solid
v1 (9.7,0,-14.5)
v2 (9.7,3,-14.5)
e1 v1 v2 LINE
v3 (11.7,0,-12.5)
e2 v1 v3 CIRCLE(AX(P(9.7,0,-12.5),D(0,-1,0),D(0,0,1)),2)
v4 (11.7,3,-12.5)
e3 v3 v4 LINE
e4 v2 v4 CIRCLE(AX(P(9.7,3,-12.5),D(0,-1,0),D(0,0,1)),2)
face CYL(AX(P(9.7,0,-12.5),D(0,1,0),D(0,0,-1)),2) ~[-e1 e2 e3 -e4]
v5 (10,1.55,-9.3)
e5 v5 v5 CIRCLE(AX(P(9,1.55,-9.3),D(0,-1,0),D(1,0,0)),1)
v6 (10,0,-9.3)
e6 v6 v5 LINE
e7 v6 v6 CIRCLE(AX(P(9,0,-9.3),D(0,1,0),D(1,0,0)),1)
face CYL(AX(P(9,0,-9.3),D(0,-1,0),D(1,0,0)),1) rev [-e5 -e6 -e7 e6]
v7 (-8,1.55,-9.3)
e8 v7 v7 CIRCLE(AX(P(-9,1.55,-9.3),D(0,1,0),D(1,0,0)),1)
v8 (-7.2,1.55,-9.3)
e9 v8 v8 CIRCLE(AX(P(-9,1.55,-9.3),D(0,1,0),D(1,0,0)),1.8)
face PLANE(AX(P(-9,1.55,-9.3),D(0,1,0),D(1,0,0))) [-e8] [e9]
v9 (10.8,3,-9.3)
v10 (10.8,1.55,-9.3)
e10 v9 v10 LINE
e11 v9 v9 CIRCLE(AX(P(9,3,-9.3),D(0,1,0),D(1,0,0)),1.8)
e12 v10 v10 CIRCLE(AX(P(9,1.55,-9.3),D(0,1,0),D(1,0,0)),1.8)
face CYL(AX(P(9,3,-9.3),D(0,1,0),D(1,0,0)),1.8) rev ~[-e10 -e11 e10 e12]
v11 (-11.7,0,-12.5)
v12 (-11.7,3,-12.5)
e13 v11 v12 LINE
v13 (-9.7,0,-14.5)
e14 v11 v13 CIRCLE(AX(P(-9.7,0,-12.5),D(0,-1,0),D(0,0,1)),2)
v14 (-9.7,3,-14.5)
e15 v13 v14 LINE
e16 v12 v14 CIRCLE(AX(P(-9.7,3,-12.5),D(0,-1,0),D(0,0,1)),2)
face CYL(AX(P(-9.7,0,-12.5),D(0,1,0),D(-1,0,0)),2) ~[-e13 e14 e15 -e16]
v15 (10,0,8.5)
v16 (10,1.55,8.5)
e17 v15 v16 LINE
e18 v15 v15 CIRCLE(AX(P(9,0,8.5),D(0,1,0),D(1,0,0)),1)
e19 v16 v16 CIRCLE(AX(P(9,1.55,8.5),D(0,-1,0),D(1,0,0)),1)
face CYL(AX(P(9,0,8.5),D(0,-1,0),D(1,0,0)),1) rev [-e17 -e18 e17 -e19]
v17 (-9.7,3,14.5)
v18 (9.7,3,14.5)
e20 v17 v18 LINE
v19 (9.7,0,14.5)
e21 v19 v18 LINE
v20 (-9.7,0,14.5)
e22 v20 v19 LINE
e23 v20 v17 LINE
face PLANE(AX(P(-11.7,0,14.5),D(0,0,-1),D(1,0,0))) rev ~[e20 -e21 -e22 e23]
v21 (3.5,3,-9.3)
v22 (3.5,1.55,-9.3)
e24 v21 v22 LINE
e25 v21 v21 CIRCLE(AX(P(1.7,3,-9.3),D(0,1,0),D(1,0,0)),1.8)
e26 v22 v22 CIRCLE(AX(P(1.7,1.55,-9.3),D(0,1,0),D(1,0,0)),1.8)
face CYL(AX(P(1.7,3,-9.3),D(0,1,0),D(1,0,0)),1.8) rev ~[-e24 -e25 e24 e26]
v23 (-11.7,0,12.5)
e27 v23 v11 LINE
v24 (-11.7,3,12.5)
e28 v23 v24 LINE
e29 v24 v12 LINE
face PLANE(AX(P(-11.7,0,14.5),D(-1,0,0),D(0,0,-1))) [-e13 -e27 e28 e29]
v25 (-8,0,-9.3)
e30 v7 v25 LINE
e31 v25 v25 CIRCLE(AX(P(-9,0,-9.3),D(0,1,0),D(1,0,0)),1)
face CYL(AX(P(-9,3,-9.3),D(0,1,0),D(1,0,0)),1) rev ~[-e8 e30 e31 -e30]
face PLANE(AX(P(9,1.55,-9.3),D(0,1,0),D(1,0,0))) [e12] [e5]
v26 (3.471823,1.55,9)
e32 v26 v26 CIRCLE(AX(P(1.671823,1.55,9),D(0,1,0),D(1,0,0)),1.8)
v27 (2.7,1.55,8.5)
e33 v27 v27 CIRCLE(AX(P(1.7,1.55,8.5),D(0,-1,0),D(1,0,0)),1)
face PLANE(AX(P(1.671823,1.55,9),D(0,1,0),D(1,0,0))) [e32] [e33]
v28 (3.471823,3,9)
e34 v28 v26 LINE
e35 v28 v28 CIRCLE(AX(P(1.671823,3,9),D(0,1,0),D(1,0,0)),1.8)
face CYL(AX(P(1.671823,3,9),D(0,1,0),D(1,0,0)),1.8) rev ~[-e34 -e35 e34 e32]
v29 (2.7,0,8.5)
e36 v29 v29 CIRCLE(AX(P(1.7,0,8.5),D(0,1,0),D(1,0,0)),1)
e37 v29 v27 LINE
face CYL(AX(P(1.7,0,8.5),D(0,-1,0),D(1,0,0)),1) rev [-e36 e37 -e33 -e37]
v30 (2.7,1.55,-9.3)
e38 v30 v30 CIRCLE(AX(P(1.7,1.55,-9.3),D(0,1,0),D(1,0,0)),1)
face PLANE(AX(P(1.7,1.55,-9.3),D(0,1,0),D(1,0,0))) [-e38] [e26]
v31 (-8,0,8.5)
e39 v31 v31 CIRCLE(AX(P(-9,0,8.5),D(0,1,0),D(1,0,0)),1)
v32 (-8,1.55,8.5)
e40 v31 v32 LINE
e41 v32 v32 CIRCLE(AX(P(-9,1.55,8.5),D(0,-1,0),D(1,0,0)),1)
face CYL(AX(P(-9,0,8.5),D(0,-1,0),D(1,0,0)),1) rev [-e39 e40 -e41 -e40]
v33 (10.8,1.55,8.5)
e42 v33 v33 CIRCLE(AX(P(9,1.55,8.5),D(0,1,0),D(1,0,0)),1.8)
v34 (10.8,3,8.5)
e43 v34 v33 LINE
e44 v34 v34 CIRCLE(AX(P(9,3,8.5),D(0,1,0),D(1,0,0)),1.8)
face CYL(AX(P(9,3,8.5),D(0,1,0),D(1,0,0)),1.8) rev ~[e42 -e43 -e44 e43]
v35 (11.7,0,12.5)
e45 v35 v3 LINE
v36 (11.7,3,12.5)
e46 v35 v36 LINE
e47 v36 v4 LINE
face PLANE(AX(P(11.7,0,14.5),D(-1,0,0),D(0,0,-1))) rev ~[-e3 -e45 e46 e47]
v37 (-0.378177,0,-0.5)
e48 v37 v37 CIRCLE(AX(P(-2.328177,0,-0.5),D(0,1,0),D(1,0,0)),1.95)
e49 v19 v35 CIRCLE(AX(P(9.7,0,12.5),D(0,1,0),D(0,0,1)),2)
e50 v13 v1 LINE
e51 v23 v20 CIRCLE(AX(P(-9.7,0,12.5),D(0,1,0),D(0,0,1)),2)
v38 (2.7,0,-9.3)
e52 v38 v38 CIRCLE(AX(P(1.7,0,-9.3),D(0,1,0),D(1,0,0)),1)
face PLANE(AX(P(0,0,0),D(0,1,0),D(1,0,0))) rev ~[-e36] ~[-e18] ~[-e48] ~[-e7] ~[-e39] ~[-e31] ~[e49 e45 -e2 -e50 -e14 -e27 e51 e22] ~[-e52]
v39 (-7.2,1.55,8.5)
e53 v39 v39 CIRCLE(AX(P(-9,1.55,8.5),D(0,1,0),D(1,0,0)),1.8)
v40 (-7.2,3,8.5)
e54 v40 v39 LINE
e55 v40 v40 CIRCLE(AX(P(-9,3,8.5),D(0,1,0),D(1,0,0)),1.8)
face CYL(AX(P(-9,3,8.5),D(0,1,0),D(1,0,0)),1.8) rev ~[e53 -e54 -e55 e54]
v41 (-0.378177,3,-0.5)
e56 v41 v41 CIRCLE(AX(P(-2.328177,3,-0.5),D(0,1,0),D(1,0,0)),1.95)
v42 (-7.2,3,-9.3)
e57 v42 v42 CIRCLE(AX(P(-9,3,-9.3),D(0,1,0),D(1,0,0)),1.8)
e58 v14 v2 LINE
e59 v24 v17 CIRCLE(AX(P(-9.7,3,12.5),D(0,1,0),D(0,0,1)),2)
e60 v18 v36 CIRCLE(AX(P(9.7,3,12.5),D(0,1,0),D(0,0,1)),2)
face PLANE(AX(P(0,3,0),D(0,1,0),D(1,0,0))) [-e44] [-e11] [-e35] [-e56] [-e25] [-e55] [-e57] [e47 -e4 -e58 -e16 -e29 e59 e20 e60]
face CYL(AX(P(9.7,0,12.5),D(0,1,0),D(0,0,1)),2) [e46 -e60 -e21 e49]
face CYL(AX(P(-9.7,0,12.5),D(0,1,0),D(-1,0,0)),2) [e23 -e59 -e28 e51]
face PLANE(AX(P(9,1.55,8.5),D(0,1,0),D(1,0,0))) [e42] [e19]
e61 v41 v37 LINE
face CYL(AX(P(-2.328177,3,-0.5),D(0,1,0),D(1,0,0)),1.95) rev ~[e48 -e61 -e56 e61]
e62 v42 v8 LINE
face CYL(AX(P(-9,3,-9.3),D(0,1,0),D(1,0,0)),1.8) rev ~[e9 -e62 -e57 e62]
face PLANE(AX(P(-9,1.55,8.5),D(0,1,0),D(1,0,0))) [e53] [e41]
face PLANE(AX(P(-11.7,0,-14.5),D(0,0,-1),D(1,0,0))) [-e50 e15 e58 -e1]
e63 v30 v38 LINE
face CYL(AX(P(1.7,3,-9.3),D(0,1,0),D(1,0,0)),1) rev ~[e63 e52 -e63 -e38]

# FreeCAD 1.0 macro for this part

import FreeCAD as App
import Part
import Sketcher


def edges_at(feature, points):
    """Names of the edges that pass closest to the given points."""
    edges = feature.Shape.Edges
    near = lambda p: min(range(len(edges)), key=lambda i: edges[i].distToShape(Part.Vertex(*p))[0])
    return sorted({f"Edge{near(p) + 1}" for p in points})

doc = App.newDocument("Part")
body = doc.addObject("PartDesign::Body", "Body")

# Sketch on XZ plane
sketch1 = body.newObject("Sketcher::SketchObject", "Sketch")
sketch1.AttachmentSupport = (doc.getObject("XZ_Plane"), [""])
sketch1.MapMode = "FlatFace"
sketch1.addGeometry(Part.LineSegment(App.Vector(-11.7, -14.5, 0), App.Vector(-11.7, 14.5, 0)), False)
sketch1.addGeometry(Part.LineSegment(App.Vector(-11.7, 14.5, 0), App.Vector(11.7, 14.5, 0)), False)
sketch1.addGeometry(Part.LineSegment(App.Vector(11.7, 14.5, 0), App.Vector(11.7, -14.5, 0)), False)
sketch1.addGeometry(Part.LineSegment(App.Vector(11.7, -14.5, 0), App.Vector(-11.7, -14.5, 0)), False)
sketch1.addGeometry(Part.Circle(App.Vector(-9, 8.5, 0), App.Vector(0, 0, 1), 1), False)
sketch1.addGeometry(Part.Circle(App.Vector(1.7, 8.5, 0), App.Vector(0, 0, 1), 1), False)
sketch1.addGeometry(Part.Circle(App.Vector(9, 8.5, 0), App.Vector(0, 0, 1), 1), False)
sketch1.addGeometry(Part.Circle(App.Vector(9, -9.3, 0), App.Vector(0, 0, 1), 1), False)
sketch1.addConstraint(Sketcher.Constraint("Coincident", 0, 2, 1, 1))
sketch1.addConstraint(Sketcher.Constraint("Coincident", 1, 2, 2, 1))
sketch1.addConstraint(Sketcher.Constraint("Coincident", 2, 2, 3, 1))
sketch1.addConstraint(Sketcher.Constraint("Coincident", 3, 2, 0, 1))
sketch1.addConstraint(Sketcher.Constraint("Vertical", 0))
sketch1.addConstraint(Sketcher.Constraint("Horizontal", 1))
sketch1.addConstraint(Sketcher.Constraint("Vertical", 2))
sketch1.addConstraint(Sketcher.Constraint("Horizontal", 3))
sketch1.addConstraint(Sketcher.Constraint("Equal", 4, 5))
sketch1.addConstraint(Sketcher.Constraint("Equal", 5, 6))
sketch1.addConstraint(Sketcher.Constraint("Equal", 6, 7))
sketch1.addConstraint(Sketcher.Constraint("Symmetric", 0, 2, 2, 2, -1, 1))
sketch1.addConstraint(Sketcher.Constraint("Symmetric", 4, 3, 6, 3, -2))
sketch1.addConstraint(Sketcher.Constraint("Horizontal", 4, 3, 5, 3))
sketch1.addConstraint(Sketcher.Constraint("Vertical", 6, 3, 7, 3))
sketch1.addConstraint(Sketcher.Constraint("Diameter", 4, 2.0))
sketch1.addConstraint(Sketcher.Constraint("DistanceY", 0, 1, 0, 2, 29.0))
sketch1.addConstraint(Sketcher.Constraint("DistanceX", 1, 1, 1, 2, 23.4))
sketch1.addConstraint(Sketcher.Constraint("DistanceX", 4, 3, -1, 1, 9.0))
sketch1.addConstraint(Sketcher.Constraint("DistanceY", 4, 3, 0, 2, 6.0))
sketch1.addConstraint(Sketcher.Constraint("DistanceX", 5, 3, 1, 2, 10.0))
sketch1.addConstraint(Sketcher.Constraint("DistanceY", 7, 3, -1, 1, 9.3))
pad1 = body.newObject("PartDesign::Pad", "Pad")
pad1.Profile = sketch1
pad1.Length = 3
pad1.Reversed = True
doc.recompute()

fillet = body.newObject("PartDesign::Fillet", "Fillet")
fillet.Base = (pad1, edges_at(pad1, [
    (11.7, 1.5, 14.5),
    (-11.7, 1.5, 14.5),
    (-11.7, 1.5, -14.5),
    (11.7, 1.5, -14.5),
]))
fillet.Radius = 2

# Sketch on XZ plane
sketch2 = body.newObject("Sketcher::SketchObject", "Sketch001")
sketch2.AttachmentSupport = (doc.getObject("XZ_Plane"), [""])
sketch2.MapMode = "FlatFace"
sketch2.AttachmentOffset = App.Placement(App.Vector(0, 0, -3), App.Rotation())
sketch2.addGeometry(Part.Circle(App.Vector(1.7, -9.3, 0), App.Vector(0, 0, 1), 1), False)
sketch2.addGeometry(Part.Circle(App.Vector(-9, -9.3, 0), App.Vector(0, 0, 1), 1), False)
sketch2.addConstraint(Sketcher.Constraint("Equal", 0, 1))
sketch2.addConstraint(Sketcher.Constraint("Horizontal", 0, 3, 1, 3))
sketch2.addConstraint(Sketcher.Constraint("Diameter", 0, 2.0))
sketch2.addConstraint(Sketcher.Constraint("DistanceX", 1, 3, -1, 1, 9.0))
sketch2.addConstraint(Sketcher.Constraint("DistanceX", -1, 1, 0, 3, 1.7))
sketch2.addConstraint(Sketcher.Constraint("DistanceY", 0, 3, -1, 1, 9.3))
pocket1 = body.newObject("PartDesign::Pocket", "Pocket")
pocket1.Profile = sketch2
pocket1.Length = 10
pocket1.Reversed = True

# Sketch on XZ plane
sketch3 = body.newObject("Sketcher::SketchObject", "Sketch002")
sketch3.AttachmentSupport = (doc.getObject("XZ_Plane"), [""])
sketch3.MapMode = "FlatFace"
sketch3.AttachmentOffset = App.Placement(App.Vector(0, 0, -3), App.Rotation())
sketch3.addGeometry(Part.Circle(App.Vector(-2.3, -0.5, 0), App.Vector(0, 0, 1), 1.9), False)
sketch3.addConstraint(Sketcher.Constraint("Diameter", 0, 3.9))
sketch3.addConstraint(Sketcher.Constraint("DistanceY", 0, 3, -1, 1, 0.5))
sketch3.addConstraint(Sketcher.Constraint("DistanceX", 0, 3, -1, 1, 2.328177))
pocket2 = body.newObject("PartDesign::Pocket", "Pocket001")
pocket2.Profile = sketch3
pocket2.Length = 10
pocket2.Reversed = True

# Sketch on XZ plane
sketch4 = body.newObject("Sketcher::SketchObject", "Sketch003")
sketch4.AttachmentSupport = (doc.getObject("XZ_Plane"), [""])
sketch4.MapMode = "FlatFace"
sketch4.AttachmentOffset = App.Placement(App.Vector(0, 0, -3), App.Rotation())
sketch4.addGeometry(Part.Circle(App.Vector(-9, 8.5, 0), App.Vector(0, 0, 1), 1.8), False)
sketch4.addGeometry(Part.Circle(App.Vector(1.7, 9, 0), App.Vector(0, 0, 1), 1.8), False)
sketch4.addGeometry(Part.Circle(App.Vector(9, 8.5, 0), App.Vector(0, 0, 1), 1.8), False)
sketch4.addGeometry(Part.Circle(App.Vector(9, -9.3, 0), App.Vector(0, 0, 1), 1.8), False)
sketch4.addGeometry(Part.Circle(App.Vector(1.7, -9.3, 0), App.Vector(0, 0, 1), 1.8), False)
sketch4.addGeometry(Part.Circle(App.Vector(-9, -9.3, 0), App.Vector(0, 0, 1), 1.8), False)
sketch4.addConstraint(Sketcher.Constraint("Equal", 0, 1))
sketch4.addConstraint(Sketcher.Constraint("Equal", 1, 2))
sketch4.addConstraint(Sketcher.Constraint("Equal", 2, 3))
sketch4.addConstraint(Sketcher.Constraint("Equal", 3, 4))
sketch4.addConstraint(Sketcher.Constraint("Equal", 4, 5))
sketch4.addConstraint(Sketcher.Constraint("Symmetric", 0, 3, 2, 3, -2))
sketch4.addConstraint(Sketcher.Constraint("Symmetric", 3, 3, 5, 3, -2))
sketch4.addConstraint(Sketcher.Constraint("Horizontal", 3, 3, 4, 3))
sketch4.addConstraint(Sketcher.Constraint("Vertical", 2, 3, 3, 3))
sketch4.addConstraint(Sketcher.Constraint("Diameter", 0, 3.6))
sketch4.addConstraint(Sketcher.Constraint("DistanceX", 0, 3, -1, 1, 9.0))
sketch4.addConstraint(Sketcher.Constraint("DistanceY", -1, 1, 1, 3, 9.0))
sketch4.addConstraint(Sketcher.Constraint("DistanceY", -1, 1, 0, 3, 8.5))
sketch4.addConstraint(Sketcher.Constraint("DistanceY", 3, 3, -1, 1, 9.3))
sketch4.addConstraint(Sketcher.Constraint("DistanceX", -1, 1, 4, 3, 1.7))
sketch4.addConstraint(Sketcher.Constraint("DistanceX", -1, 1, 1, 3, 1.671823))
pocket3 = body.newObject("PartDesign::Pocket", "Pocket002")
pocket3.Profile = sketch4
pocket3.Length = 1.45
pocket3.Reversed = True

doc.recompute()
